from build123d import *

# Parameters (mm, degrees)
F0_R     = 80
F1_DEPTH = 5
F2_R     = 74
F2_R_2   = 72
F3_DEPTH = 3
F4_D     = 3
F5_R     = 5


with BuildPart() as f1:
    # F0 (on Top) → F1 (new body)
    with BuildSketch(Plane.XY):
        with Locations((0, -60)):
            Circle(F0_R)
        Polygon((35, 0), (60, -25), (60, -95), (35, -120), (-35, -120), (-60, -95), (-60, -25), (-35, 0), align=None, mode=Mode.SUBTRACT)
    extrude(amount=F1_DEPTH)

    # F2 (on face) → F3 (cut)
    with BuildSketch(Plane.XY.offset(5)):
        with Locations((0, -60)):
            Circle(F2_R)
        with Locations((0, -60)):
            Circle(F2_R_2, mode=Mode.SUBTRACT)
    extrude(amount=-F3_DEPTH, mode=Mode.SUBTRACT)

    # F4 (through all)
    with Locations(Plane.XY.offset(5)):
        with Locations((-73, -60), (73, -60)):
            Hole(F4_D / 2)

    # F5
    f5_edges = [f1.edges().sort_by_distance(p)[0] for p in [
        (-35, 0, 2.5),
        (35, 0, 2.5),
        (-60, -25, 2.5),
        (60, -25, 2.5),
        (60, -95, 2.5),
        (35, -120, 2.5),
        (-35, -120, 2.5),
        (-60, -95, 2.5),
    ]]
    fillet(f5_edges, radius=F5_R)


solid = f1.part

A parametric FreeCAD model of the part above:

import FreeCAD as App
import Part
import Sketcher

V = App.Vector
Q = App.Units.Quantity


def edges_at(feature, points):
    """Names of the edges that pass closest to the given points."""
    edges = feature.Shape.Edges
    near = lambda p: min(range(len(edges)), key=lambda i: edges[i].distToShape(Part.Vertex(*p))[0])
    return sorted({f"Edge{near(p) + 1}" for p in points})


def add_polygon(sketch, points):
    """Adds a closed chain of lines whose ends are joined by coincident constraints."""
    first, n = sketch.GeometryCount, len(points)
    for a, b in zip(points, points[1:] + points[:1]):
        sketch.addGeometry(Part.LineSegment(App.Vector(*a, 0), App.Vector(*b, 0)), False)
    for i in range(n):
        sketch.addConstraint(Sketcher.Constraint("Coincident", first + i, 2, first + (i + 1) % n, 1))

doc = App.newDocument("Part")
body = doc.addObject("PartDesign::Body", "Body")

# Sketch on XY plane
sketch1 = body.newObject("Sketcher::SketchObject", "Sketch")
sketch1.AttachmentSupport = (doc.getObject("XY_Plane"), [""])
sketch1.MapMode = "FlatFace"
sketch1.addGeometry(Part.Circle(V(0, -60, 0), V(0, 0, 1), 80), False)  # 0
add_polygon(sketch1, [(-35, 0), (35, 0), (60, -25), (60, -95), (35, -120), (-35, -120), (-60, -95), (-60, -25)])  # lines 1-8
sketch1.addConstraint(Sketcher.Constraint("Horizontal", 1))
sketch1.addConstraint(Sketcher.Constraint("Vertical", 3))
sketch1.addConstraint(Sketcher.Constraint("Horizontal", 5))
sketch1.addConstraint(Sketcher.Constraint("Vertical", 7))
sketch1.addConstraint(Sketcher.Constraint("Symmetric", 1, 2, 8, 2, -1, 1))
sketch1.addConstraint(Sketcher.Constraint("Symmetric", 3, 2, 6, 2, -2))
sketch1.addConstraint(Sketcher.Constraint("PointOnObject", 0, 3, -2))
sketch1.addConstraint(Sketcher.Constraint("Perpendicular", 2, 4))
sketch1.addConstraint(Sketcher.Constraint("Perpendicular", 4, 6))
sketch1.addConstraint(Sketcher.Constraint("Perpendicular", 6, 8))
sketch1.addConstraint(Sketcher.Constraint("Horizontal", 2, 2, 7, 2))
sketch1.addConstraint(Sketcher.Constraint("Vertical", 1, 2, 4, 2))
sketch1.addConstraint(Sketcher.Constraint("Equal", 5, 3))
sketch1.addConstraint(Sketcher.Constraint("Diameter", 0, Q("160 mm")))
sketch1.addConstraint(Sketcher.Constraint("DistanceX", 1, 1, 1, 2, Q("70 mm")))
sketch1.addConstraint(Sketcher.Constraint("DistanceY", 0, 3, -1, 1, Q("60 mm")))
sketch1.addConstraint(Sketcher.Constraint("DistanceX", -1, 1, 2, 2, Q("60 mm")))
pad1 = body.newObject("PartDesign::Pad", "Pad")
pad1.Profile = sketch1
pad1.Length = 5

# Sketch on XY plane
sketch2 = body.newObject("Sketcher::SketchObject", "Sketch001")
sketch2.AttachmentSupport = (doc.getObject("XY_Plane"), [""])
sketch2.MapMode = "FlatFace"
sketch2.AttachmentOffset = App.Placement(V(0, 0, 5), App.Rotation())
sketch2.addGeometry(Part.Circle(V(0, -60, 0), V(0, 0, 1), 74), False)
sketch2.addGeometry(Part.Circle(V(0, -60, 0), V(0, 0, 1), 72), False)
sketch2.addConstraint(Sketcher.Constraint("Coincident", 1, 3, 0, 3))
sketch2.addConstraint(Sketcher.Constraint("PointOnObject", 0, 3, -2))
sketch2.addConstraint(Sketcher.Constraint("Diameter", 0, Q("148 mm")))
sketch2.addConstraint(Sketcher.Constraint("Diameter", 1, Q("144 mm")))
sketch2.addConstraint(Sketcher.Constraint("DistanceY", 0, 3, -1, 1, Q("60 mm")))
pocket1 = body.newObject("PartDesign::Pocket", "Pocket")
pocket1.Profile = sketch2
pocket1.Length = 3

# Sketch on XY plane
sketch3 = body.newObject("Sketcher::SketchObject", "Sketch002")
sketch3.AttachmentSupport = (doc.getObject("XY_Plane"), [""])
sketch3.MapMode = "FlatFace"
sketch3.AttachmentOffset = App.Placement(V(0, 0, 5), App.Rotation())
sketch3.addGeometry(Part.Circle(V(-73, -60, 0), V(0, 0, 1), 1.5), False)
sketch3.addGeometry(Part.Circle(V(73, -60, 0), V(0, 0, 1), 1.5), False)
sketch3.addConstraint(Sketcher.Constraint("Equal", 0, 1))
sketch3.addConstraint(Sketcher.Constraint("Symmetric", 0, 3, 1, 3, -2))
sketch3.addConstraint(Sketcher.Constraint("Diameter", 0, Q("3 mm")))
sketch3.addConstraint(Sketcher.Constraint("DistanceX", 0, 3, -1, 1, Q("73 mm")))
sketch3.addConstraint(Sketcher.Constraint("DistanceY", 0, 3, -1, 1, Q("60 mm")))
doc.recompute()
hole = body.newObject("PartDesign::Hole", "Hole")
hole.Profile = sketch3
hole.ThreadType = "None"
hole.Diameter = 3
hole.DepthType = "ThroughAll"
doc.recompute()

fillet = body.newObject("PartDesign::Fillet", "Fillet")
fillet.Base = (hole, edges_at(hole, [
    (-35, 0, 2.5),
    (35, 0, 2.5),
    (-60, -25, 2.5),
    (60, -25, 2.5),
    (60, -95, 2.5),
    (35, -120, 2.5),
    (-35, -120, 2.5),
    (-60, -95, 2.5),
]))
fillet.Radius = 5

doc.recompute()
